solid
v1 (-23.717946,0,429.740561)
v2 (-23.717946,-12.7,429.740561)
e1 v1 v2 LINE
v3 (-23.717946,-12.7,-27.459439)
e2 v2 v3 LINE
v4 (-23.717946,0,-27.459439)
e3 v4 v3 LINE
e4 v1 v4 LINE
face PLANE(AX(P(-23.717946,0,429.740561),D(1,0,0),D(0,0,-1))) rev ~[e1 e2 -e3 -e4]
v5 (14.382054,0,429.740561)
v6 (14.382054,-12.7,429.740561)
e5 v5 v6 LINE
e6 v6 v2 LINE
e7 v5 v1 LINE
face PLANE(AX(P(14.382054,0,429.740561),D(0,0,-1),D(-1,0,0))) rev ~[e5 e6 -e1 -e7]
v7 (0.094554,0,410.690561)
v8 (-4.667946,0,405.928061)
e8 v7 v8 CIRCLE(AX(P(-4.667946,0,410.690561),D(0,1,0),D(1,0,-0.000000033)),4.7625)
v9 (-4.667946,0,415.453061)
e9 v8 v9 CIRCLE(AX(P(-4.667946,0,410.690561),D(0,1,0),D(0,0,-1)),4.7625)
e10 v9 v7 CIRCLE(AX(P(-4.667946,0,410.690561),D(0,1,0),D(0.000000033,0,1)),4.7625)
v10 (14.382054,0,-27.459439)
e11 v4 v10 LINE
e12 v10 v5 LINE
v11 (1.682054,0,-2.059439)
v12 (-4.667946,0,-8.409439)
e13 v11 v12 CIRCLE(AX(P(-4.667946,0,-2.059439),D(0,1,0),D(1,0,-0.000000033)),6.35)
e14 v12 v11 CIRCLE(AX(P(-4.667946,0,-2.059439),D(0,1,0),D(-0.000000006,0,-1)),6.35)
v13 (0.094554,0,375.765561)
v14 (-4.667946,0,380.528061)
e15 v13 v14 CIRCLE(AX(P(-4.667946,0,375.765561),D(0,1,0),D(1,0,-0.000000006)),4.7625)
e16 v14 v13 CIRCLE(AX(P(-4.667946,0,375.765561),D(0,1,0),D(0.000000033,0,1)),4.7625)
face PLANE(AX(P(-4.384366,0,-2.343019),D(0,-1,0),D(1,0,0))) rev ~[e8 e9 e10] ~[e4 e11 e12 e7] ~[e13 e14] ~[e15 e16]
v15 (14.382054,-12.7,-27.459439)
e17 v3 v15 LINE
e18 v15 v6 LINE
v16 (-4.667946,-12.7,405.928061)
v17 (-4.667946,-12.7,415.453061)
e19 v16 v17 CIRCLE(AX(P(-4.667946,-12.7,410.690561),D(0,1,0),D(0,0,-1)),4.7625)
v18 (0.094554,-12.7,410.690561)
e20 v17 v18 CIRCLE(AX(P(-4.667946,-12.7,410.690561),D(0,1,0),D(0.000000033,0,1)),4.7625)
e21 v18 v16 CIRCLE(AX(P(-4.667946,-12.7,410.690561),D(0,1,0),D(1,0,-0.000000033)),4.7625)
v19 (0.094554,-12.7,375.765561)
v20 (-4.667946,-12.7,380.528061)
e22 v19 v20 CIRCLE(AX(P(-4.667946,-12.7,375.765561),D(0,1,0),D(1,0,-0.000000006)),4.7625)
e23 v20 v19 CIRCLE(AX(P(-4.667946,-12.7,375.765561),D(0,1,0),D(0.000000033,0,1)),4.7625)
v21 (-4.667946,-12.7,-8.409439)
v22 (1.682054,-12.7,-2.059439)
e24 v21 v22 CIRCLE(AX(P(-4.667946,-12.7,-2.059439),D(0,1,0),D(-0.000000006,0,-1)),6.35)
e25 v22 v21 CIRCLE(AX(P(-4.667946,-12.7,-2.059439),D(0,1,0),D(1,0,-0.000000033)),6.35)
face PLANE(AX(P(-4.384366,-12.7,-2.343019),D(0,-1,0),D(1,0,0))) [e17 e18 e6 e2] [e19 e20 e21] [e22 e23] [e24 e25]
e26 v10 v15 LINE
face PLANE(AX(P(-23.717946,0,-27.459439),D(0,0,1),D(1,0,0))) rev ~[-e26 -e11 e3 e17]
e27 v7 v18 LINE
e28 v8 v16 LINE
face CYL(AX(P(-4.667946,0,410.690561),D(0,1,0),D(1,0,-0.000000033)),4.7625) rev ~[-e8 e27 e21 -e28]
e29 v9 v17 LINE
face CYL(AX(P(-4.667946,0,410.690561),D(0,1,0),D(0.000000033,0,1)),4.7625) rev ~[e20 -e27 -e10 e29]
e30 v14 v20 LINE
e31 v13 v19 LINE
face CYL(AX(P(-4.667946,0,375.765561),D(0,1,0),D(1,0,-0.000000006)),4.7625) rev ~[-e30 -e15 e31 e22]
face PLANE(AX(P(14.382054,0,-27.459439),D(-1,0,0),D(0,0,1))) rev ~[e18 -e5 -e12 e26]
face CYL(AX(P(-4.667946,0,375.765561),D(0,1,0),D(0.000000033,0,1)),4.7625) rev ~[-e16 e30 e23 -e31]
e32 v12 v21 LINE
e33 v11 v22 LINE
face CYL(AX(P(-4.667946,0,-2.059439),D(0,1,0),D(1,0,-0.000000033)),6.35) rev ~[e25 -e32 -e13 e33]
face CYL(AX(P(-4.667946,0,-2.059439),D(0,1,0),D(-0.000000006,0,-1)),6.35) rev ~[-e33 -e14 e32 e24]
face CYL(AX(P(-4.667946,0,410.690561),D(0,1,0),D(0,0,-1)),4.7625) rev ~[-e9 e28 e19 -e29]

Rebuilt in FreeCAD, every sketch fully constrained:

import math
import FreeCAD as App
import Part
import Sketcher

V = App.Vector
Q = App.Units.Quantity


def add_polygon(sketch, points):
    """Adds a closed chain of lines whose ends are joined by coincident constraints."""
    first, n = sketch.GeometryCount, len(points)
    for a, b in zip(points, points[1:] + points[:1]):
        sketch.addGeometry(Part.LineSegment(App.Vector(*a, 0), App.Vector(*b, 0)), False)
    for i in range(n):
        sketch.addConstraint(Sketcher.Constraint("Coincident", first + i, 2, first + (i + 1) % n, 1))

doc = App.newDocument("Part")
params = doc.addObject("Spreadsheet::Sheet", "Params")
for row, (alias, value) in enumerate([
    ("sketch1_height", "18 in"),
    ("sketch1_radius", "0.25 in"),
    ("sketch1_width", "1.5 in"),
    ("sketch1_radius2", "0.1875 in"),
    ("pad1_length", "0.5 in"),
], start=1):
    params.set(f"A{row}", alias)
    params.set(f"B{row}", "=" + value)
    params.setAlias(f"B{row}", alias)

body = doc.addObject("PartDesign::Body", "Body")

# Sketch on XZ plane
sketch1 = body.newObject("Sketcher::SketchObject", "Sketch")
sketch1.AttachmentSupport = (doc.getObject("XZ_Plane"), [""])
sketch1.MapMode = "FlatFace"
add_polygon(sketch1, [(-23.7, 429.7), (-23.7, -27.5), (14.4, -27.5), (14.4, 429.7)])  # lines 0-3
sketch1.addGeometry(Part.ArcOfCircle(Part.Circle(V(-4.7, -2.1, 0), V(0, 0, 1), 6.3), math.radians(0), math.radians(270)), False)  # 4
sketch1.addGeometry(Part.ArcOfCircle(Part.Circle(V(-4.7, -2.1, 0), V(0, 0, 1), 6.4), math.radians(-90), math.radians(0)), False)  # 5
sketch1.addGeometry(Part.ArcOfCircle(Part.Circle(V(-4.7, 375.8, 0), V(0, 0, 1), 4.8), math.radians(0), math.radians(90)), False)  # 6
sketch1.addGeometry(Part.ArcOfCircle(Part.Circle(V(-4.7, 375.8, 0), V(0, 0, 1), 4.8), math.radians(90), math.radians(360)), False)  # 7
sketch1.addGeometry(Part.ArcOfCircle(Part.Circle(V(-4.7, 410.7, 0), V(0, 0, 1), 4.8), math.radians(-90), math.radians(0)), False)  # 8
sketch1.addGeometry(Part.ArcOfCircle(Part.Circle(V(-4.7, 410.7, 0), V(0, 0, 1), 4.8), math.radians(90), math.radians(270)), False)  # 9
sketch1.addGeometry(Part.ArcOfCircle(Part.Circle(V(-4.7, 410.7, 0), V(0, 0, 1), 4.8), math.radians(0), math.radians(90)), False)  # 10
sketch1.addConstraint(Sketcher.Constraint("Tangent", 4, 1, 5, 2))
sketch1.addConstraint(Sketcher.Constraint("Coincident", 5, 1, 4, 2))
sketch1.addConstraint(Sketcher.Constraint("Tangent", 6, 1, 7, 2))
sketch1.addConstraint(Sketcher.Constraint("Coincident", 7, 1, 6, 2))
sketch1.addConstraint(Sketcher.Constraint("Tangent", 8, 1, 9, 2))
sketch1.addConstraint(Sketcher.Constraint("Tangent", 9, 1, 10, 2))
sketch1.addConstraint(Sketcher.Constraint("Tangent", 10, 1, 8, 2))
sketch1.addConstraint(Sketcher.Constraint("Vertical", 0))
sketch1.addConstraint(Sketcher.Constraint("Horizontal", 1))
sketch1.addConstraint(Sketcher.Constraint("Vertical", 2))
sketch1.addConstraint(Sketcher.Constraint("Horizontal", 3))
sketch1.addConstraint(Sketcher.Constraint("Equal", 7, 8))
sketch1.addConstraint(Sketcher.Constraint("Horizontal", 5, 3, 4, 1))
sketch1.addConstraint(Sketcher.Constraint("Horizontal", 7, 3, 6, 1))
sketch1.addConstraint(Sketcher.Constraint("Horizontal", 9, 3, 10, 1))
sketch1.addConstraint(Sketcher.Constraint("Vertical", 5, 3, 6, 3))
sketch1.addConstraint(Sketcher.Constraint("Vertical", 7, 3, 8, 3))
sketch1.addConstraint(Sketcher.Constraint("Vertical", 10, 3, 5, 1))
sketch1.addConstraint(Sketcher.Constraint("Vertical", 5, 1, 7, 1))
sketch1.addConstraint(Sketcher.Constraint("Vertical", 7, 1, 8, 1))
sketch1.addConstraint(Sketcher.Constraint("Vertical", 8, 1, 9, 1))
sketch1.addConstraint(Sketcher.Constraint("DistanceY", 0, 2, 0, 1, Q("18 in")))
sketch1.addConstraint(Sketcher.Constraint("Radius", 4, Q("0.25 in")))
sketch1.addConstraint(Sketcher.Constraint("DistanceX", 1, 1, 1, 2, Q("1.5 in")))
sketch1.addConstraint(Sketcher.Constraint("Radius", 6, Q("0.1875 in")))
sketch1.addConstraint(Sketcher.Constraint("DistanceY", 0, 2, 4, 3, Q("1 in")))
sketch1.addConstraint(Sketcher.Constraint("DistanceX", 0, 2, 4, 1, Q("1 in")))
sketch1.addConstraint(Sketcher.Constraint("DistanceY", 7, 1, 8, 1, Q("1 in")))
sketch1.addConstraint(Sketcher.Constraint("DistanceY", 5, 3, 8, 3, Q("16.25 in")))
sketch1.addConstraint(Sketcher.Constraint("DistanceY", 4, 3, -1, 1, Q("2.059439 mm")))
sketch1.addConstraint(Sketcher.Constraint("DistanceX", 4, 3, -1, 1, Q("4.667946 mm")))
sketch1.setExpression("Constraints[25]", "Params.sketch1_height")
sketch1.setExpression("Constraints[26]", "Params.sketch1_radius")
sketch1.setExpression("Constraints[27]", "Params.sketch1_width")
sketch1.setExpression("Constraints[28]", "Params.sketch1_radius2")
pad1 = body.newObject("PartDesign::Pad", "Pad")
pad1.Profile = sketch1
pad1.setExpression("Length", "Params.pad1_length")

doc.recompute()
